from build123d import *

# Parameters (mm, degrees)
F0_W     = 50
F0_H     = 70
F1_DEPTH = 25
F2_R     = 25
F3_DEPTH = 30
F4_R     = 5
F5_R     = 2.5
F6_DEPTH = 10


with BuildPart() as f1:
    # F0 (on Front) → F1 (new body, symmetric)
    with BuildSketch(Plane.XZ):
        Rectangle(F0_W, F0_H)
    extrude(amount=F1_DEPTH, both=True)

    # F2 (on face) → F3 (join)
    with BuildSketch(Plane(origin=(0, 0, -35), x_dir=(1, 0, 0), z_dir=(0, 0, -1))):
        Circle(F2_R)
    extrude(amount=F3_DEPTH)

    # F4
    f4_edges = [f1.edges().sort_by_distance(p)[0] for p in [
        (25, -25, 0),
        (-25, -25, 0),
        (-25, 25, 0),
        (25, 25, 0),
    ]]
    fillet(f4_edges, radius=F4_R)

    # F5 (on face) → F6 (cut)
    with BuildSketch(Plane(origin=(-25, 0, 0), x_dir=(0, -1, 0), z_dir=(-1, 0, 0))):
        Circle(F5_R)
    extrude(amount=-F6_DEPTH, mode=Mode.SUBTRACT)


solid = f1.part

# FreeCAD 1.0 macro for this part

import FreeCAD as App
import Part
import Sketcher
from FreeCAD import Vector


def edges_at(feature, points):
    """Names of the edges that pass closest to the given points."""
    edges = feature.Shape.Edges
    near = lambda p: min(range(len(edges)), key=lambda i: edges[i].distToShape(Part.Vertex(*p))[0])
    return sorted({f"Edge{near(p) + 1}" for p in points})

doc = App.newDocument("Part")
body = doc.addObject("PartDesign::Body", "Body")

sketch1 = doc.addObject("Sketcher::SketchObject", "Sketch")
body.addObject(sketch1)
sketch1.AttachmentSupport = (doc.XZ_Plane, [""])
sketch1.MapMode = "FlatFace"
sketch1.addGeometry([
    Part.LineSegment(Vector(-25, 35, 0), Vector(-25, -35, 0)),
    Part.LineSegment(Vector(-25, -35, 0), Vector(25, -35, 0)),
    Part.LineSegment(Vector(25, -35, 0), Vector(25, 35, 0)),
    Part.LineSegment(Vector(25, 35, 0), Vector(-25, 35, 0)),
], False)
sketch1.addConstraint([
    Sketcher.Constraint("Coincident", 0, 2, 1, 1),
    Sketcher.Constraint("Coincident", 1, 2, 2, 1),
    Sketcher.Constraint("Coincident", 2, 2, 3, 1),
    Sketcher.Constraint("Coincident", 3, 2, 0, 1),
    Sketcher.Constraint("Vertical", 0),
    Sketcher.Constraint("Horizontal", 1),
    Sketcher.Constraint("Vertical", 2),
    Sketcher.Constraint("Horizontal", 3),
    Sketcher.Constraint("Symmetric", 0, 2, 2, 2, -1, 1),
    Sketcher.Constraint("DistanceX", 1, 1, 1, 2, 50.0),
    Sketcher.Constraint("DistanceY", 0, 2, 0, 1, 70.0),
])
pad1 = doc.addObject("PartDesign::Pad", "Pad")
body.addObject(pad1)
pad1.Profile = sketch1
pad1.Length = 50
pad1.Midplane = True

sketch2 = doc.addObject("Sketcher::SketchObject", "Sketch001")
body.addObject(sketch2)
sketch2.AttachmentSupport = (doc.XY_Plane, [""])
sketch2.MapMode = "FlatFace"
sketch2.AttachmentOffset = App.Placement(Vector(0, 0, -35), App.Rotation())
sketch2.addGeometry(Part.Circle(Vector(0, 0, 0), Vector(0, 0, 1), 25), False)
sketch2.addConstraint([
    Sketcher.Constraint("Coincident", 0, 3, -1, 1),
    Sketcher.Constraint("Diameter", 0, 50.0),
])
pad2 = doc.addObject("PartDesign::Pad", "Pad001")
body.addObject(pad2)
pad2.Profile = sketch2
pad2.Length = 30
pad2.Reversed = True
doc.recompute()

fillet = doc.addObject("PartDesign::Fillet", "Fillet")
body.addObject(fillet)
fillet.Base = (pad2, edges_at(pad2, [
    (25, -25, 0),
    (-25, -25, 0),
    (-25, 25, 0),
    (25, 25, 0),
]))
fillet.Radius = 5

sketch3 = doc.addObject("Sketcher::SketchObject", "Sketch002")
body.addObject(sketch3)
sketch3.AttachmentSupport = (doc.YZ_Plane, [""])
sketch3.MapMode = "FlatFace"
sketch3.AttachmentOffset = App.Placement(Vector(0, 0, -25), App.Rotation())
sketch3.addGeometry(Part.Circle(Vector(0, 0, 0), Vector(0, 0, 1), 2.5), False)
sketch3.addConstraint([
    Sketcher.Constraint("Coincident", 0, 3, -1, 1),
    Sketcher.Constraint("Diameter", 0, 5.0),
])
pocket1 = doc.addObject("PartDesign::Pocket", "Pocket")
body.addObject(pocket1)
pocket1.Profile = sketch3
pocket1.Length = 10
pocket1.Reversed = True

doc.recompute()
